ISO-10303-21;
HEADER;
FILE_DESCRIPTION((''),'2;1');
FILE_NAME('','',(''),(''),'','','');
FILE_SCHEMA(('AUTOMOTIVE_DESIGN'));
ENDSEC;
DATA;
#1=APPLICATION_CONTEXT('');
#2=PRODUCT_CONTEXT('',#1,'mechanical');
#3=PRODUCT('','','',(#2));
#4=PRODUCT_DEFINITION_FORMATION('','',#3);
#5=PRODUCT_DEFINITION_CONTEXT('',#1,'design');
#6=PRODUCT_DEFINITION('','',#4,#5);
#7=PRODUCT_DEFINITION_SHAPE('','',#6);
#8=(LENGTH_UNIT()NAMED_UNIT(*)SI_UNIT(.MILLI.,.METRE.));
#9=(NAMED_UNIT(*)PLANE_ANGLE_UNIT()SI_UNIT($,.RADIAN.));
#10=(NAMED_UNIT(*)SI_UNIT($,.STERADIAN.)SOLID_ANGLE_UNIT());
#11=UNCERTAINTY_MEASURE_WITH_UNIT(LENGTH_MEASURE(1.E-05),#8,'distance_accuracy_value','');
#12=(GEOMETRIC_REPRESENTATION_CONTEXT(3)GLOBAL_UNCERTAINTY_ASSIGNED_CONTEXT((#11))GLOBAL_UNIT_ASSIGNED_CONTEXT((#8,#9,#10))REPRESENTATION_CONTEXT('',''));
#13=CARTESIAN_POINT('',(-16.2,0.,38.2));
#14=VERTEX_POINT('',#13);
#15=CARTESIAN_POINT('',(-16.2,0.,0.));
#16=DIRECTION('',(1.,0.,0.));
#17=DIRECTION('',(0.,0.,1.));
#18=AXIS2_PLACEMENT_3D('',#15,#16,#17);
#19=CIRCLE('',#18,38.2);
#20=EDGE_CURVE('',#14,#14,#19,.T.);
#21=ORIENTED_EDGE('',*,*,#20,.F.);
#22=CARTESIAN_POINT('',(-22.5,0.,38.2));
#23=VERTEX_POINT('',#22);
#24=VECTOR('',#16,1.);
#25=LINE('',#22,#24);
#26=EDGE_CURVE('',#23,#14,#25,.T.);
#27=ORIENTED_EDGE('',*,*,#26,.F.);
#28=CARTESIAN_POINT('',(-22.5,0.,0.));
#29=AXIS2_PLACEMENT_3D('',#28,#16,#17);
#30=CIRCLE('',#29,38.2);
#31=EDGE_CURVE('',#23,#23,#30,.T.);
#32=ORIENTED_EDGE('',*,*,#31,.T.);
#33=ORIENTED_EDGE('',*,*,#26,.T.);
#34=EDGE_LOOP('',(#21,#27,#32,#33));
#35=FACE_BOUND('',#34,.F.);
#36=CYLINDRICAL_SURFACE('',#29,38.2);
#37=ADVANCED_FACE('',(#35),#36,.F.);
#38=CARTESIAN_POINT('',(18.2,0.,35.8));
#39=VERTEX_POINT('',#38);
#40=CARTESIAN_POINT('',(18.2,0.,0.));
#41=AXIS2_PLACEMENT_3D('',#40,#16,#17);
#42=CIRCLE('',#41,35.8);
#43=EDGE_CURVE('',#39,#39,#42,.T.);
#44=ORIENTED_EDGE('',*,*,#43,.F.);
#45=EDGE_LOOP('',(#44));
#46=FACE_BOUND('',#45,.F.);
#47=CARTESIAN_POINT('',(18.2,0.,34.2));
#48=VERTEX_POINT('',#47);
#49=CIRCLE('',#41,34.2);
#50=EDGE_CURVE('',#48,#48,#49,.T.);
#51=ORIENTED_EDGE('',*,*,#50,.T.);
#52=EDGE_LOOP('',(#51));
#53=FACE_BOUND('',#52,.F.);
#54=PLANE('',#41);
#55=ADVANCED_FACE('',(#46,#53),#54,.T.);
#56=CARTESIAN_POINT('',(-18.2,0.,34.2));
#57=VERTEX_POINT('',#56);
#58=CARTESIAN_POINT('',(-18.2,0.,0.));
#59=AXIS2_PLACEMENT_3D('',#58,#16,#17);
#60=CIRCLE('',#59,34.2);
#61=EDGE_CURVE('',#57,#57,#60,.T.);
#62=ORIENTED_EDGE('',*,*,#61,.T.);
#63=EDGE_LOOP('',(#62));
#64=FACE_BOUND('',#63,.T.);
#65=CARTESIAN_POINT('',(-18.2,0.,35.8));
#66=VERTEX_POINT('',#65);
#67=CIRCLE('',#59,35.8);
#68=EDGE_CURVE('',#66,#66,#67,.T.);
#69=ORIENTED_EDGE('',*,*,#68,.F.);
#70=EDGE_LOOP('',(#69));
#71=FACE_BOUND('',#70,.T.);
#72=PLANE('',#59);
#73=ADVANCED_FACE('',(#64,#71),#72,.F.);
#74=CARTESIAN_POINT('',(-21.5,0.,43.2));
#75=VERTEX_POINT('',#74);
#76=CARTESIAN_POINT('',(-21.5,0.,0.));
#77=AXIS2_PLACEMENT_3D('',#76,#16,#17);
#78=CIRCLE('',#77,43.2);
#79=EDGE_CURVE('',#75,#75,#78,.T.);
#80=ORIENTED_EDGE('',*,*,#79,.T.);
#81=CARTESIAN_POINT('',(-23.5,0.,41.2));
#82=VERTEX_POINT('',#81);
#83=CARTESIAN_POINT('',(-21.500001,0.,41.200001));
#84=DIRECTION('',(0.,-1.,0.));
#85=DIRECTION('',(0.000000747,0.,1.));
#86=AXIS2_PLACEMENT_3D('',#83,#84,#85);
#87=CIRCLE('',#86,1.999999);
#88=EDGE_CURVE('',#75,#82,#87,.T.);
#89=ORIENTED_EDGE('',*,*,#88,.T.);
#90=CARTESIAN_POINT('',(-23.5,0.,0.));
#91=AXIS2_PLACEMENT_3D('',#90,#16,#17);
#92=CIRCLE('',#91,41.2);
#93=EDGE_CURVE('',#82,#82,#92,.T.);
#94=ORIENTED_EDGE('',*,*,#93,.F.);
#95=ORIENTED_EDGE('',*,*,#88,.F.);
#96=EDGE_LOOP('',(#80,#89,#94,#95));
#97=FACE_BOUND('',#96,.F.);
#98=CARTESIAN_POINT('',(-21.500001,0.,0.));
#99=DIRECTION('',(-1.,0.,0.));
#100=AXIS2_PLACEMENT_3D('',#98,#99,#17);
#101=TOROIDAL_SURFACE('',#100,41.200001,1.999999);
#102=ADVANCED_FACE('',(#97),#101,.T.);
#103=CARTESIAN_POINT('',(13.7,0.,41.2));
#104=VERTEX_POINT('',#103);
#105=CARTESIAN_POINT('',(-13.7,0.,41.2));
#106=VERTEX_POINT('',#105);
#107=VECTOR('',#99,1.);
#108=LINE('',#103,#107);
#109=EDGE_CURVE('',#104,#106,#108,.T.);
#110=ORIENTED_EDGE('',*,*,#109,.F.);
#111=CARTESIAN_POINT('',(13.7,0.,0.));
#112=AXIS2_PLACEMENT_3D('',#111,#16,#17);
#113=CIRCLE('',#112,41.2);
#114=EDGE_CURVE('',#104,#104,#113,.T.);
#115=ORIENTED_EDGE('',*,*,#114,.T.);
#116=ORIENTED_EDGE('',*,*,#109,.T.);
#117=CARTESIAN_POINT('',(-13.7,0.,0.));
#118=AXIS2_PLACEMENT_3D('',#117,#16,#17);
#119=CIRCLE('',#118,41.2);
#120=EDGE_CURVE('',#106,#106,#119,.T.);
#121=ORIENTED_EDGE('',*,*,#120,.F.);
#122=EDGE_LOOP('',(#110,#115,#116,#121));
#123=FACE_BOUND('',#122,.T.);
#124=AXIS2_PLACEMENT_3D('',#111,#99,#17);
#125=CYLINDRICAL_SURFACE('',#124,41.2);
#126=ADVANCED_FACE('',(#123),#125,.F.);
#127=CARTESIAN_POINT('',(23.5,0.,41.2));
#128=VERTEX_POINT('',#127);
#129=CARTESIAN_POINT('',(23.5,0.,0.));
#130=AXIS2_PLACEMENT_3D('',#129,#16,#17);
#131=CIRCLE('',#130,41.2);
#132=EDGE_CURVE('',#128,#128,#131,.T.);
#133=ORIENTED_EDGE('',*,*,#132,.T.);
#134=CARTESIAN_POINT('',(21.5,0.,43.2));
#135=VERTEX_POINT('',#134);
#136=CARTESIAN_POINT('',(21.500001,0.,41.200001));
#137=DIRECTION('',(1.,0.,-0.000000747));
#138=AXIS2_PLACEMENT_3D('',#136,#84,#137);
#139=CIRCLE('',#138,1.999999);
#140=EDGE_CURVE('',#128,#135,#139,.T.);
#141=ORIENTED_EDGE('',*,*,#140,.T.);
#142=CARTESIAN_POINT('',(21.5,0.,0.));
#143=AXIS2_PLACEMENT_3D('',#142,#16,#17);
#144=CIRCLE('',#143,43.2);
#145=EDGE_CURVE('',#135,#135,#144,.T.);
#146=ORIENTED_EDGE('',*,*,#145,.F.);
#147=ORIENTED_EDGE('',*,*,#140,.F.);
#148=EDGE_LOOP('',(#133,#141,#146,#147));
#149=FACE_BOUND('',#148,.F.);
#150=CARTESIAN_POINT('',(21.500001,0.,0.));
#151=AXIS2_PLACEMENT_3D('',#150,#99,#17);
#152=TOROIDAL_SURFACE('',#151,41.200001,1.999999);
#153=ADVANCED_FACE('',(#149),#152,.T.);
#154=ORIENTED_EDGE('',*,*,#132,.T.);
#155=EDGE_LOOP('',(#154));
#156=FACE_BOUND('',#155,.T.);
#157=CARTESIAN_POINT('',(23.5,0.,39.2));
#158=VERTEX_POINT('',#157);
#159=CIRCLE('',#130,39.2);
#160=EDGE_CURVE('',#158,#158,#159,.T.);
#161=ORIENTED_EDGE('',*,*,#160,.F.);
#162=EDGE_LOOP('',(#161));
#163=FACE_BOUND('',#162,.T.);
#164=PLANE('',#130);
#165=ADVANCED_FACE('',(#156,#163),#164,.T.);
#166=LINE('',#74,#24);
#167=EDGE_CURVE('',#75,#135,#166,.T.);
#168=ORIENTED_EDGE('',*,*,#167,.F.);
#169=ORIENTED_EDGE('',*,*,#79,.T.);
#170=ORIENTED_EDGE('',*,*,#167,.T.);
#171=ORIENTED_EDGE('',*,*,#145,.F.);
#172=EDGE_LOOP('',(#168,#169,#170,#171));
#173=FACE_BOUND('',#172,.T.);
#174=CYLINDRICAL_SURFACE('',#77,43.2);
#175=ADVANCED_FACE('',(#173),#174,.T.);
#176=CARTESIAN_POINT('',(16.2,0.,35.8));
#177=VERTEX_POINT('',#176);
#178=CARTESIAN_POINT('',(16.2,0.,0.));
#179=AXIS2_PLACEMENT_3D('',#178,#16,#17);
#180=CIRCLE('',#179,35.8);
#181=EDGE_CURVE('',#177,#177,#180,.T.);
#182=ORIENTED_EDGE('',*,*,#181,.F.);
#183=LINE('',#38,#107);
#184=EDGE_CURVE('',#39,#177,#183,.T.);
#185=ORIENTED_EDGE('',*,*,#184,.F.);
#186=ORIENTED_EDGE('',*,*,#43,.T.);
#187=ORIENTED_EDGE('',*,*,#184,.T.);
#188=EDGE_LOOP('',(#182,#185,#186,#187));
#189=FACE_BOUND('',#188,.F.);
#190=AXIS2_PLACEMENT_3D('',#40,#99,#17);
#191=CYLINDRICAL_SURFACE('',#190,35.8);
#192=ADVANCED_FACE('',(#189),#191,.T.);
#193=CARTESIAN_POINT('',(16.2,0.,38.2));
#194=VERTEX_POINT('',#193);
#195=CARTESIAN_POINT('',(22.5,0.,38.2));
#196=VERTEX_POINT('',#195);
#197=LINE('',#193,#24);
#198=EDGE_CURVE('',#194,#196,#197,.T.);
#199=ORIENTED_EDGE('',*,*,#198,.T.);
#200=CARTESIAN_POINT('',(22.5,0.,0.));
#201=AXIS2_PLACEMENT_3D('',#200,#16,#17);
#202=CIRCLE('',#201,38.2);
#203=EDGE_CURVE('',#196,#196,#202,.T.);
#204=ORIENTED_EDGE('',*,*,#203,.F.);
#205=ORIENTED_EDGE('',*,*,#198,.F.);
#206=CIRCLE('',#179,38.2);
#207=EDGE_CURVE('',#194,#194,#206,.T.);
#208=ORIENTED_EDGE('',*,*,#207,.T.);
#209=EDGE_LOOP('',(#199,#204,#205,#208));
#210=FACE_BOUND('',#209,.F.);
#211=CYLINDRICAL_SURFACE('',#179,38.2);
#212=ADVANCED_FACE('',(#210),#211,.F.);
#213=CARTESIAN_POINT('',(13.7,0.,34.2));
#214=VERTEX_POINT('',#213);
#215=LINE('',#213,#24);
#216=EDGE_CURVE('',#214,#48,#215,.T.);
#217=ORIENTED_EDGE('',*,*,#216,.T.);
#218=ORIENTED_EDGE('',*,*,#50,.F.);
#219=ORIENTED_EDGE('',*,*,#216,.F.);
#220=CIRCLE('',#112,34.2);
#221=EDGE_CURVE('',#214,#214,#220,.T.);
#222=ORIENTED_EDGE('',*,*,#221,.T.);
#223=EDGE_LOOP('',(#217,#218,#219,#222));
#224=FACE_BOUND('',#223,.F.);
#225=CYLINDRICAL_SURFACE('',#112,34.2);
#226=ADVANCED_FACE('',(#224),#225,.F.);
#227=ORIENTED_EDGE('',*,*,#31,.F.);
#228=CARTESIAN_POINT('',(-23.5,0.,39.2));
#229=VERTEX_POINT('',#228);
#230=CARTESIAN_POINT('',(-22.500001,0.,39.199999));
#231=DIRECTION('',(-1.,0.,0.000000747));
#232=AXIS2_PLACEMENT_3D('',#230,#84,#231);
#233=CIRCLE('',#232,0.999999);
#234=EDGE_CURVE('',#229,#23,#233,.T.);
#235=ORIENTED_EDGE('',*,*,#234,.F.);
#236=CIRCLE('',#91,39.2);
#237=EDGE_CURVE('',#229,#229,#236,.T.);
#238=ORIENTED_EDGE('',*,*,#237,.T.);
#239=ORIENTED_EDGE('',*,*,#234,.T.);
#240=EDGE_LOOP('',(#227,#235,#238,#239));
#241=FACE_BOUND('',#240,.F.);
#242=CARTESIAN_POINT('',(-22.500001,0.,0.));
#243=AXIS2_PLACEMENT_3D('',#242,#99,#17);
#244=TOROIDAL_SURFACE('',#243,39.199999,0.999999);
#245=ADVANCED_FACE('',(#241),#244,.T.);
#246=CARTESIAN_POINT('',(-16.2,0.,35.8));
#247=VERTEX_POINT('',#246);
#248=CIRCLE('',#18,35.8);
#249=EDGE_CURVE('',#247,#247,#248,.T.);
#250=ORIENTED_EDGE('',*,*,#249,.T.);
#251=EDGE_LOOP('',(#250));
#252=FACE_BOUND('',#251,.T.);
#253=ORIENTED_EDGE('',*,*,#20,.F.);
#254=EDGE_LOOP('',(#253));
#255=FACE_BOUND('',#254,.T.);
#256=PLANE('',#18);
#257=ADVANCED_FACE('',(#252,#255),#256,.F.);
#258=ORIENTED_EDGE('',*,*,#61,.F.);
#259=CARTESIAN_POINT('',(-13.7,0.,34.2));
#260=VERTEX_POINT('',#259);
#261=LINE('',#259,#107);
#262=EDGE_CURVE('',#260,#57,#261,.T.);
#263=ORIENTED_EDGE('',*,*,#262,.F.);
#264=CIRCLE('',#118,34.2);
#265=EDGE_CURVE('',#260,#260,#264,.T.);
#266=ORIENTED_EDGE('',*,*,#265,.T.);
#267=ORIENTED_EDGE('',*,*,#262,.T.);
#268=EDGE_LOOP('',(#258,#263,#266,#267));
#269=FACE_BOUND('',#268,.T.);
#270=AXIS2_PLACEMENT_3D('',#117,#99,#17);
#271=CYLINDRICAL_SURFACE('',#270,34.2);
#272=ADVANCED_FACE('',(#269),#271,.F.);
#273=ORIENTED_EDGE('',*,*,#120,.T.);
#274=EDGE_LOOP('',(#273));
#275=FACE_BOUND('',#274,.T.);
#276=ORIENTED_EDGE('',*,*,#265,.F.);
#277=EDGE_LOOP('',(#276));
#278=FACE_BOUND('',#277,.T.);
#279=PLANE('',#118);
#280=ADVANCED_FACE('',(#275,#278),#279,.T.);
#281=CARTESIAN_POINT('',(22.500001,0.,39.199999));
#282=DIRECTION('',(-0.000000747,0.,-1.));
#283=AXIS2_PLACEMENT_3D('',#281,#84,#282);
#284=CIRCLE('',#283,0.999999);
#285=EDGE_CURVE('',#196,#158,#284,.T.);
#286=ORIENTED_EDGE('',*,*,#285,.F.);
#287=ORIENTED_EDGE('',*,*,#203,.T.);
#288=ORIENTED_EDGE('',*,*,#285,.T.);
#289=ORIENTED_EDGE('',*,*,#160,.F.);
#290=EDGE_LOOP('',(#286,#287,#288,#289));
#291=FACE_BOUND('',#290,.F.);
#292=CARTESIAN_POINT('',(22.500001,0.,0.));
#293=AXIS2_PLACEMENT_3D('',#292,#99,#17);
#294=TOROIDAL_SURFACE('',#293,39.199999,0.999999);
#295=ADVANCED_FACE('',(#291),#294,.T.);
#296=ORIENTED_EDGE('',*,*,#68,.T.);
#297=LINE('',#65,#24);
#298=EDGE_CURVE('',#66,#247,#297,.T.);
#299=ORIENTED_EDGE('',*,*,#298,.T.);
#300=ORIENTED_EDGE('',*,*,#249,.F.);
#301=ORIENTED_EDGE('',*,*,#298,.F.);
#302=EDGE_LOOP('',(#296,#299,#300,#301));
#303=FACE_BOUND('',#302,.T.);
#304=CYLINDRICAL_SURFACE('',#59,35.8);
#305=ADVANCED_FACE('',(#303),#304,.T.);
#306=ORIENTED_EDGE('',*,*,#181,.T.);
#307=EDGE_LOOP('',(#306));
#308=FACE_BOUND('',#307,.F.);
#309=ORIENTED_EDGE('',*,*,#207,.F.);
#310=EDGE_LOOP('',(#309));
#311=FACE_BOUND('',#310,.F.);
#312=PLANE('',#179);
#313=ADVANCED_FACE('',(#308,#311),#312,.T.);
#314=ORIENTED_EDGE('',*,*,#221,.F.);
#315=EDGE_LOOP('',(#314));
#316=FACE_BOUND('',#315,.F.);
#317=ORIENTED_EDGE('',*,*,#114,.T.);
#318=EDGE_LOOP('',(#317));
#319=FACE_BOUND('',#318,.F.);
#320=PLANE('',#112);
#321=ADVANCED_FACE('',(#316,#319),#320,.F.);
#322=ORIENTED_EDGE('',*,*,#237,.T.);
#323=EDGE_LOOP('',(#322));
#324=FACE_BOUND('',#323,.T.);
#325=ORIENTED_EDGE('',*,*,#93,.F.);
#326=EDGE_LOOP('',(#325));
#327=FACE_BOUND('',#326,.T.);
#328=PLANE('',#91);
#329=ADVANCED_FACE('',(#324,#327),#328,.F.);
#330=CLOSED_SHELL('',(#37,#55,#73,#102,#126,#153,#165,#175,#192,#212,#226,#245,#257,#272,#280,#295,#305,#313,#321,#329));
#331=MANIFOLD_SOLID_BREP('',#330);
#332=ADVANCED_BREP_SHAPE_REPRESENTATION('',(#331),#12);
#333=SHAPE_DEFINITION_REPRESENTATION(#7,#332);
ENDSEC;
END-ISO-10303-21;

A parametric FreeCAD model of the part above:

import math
import FreeCAD as App
import Part
import Sketcher
from FreeCAD import Vector
Q = App.Units.Quantity

doc = App.newDocument("Part")
body = doc.addObject("PartDesign::Body", "Body")

# Sketch on XZ plane
sketch1 = body.newObject("Sketcher::SketchObject", "Sketch")
sketch1.AttachmentSupport = (doc.getObject("XZ_Plane"), [""])
sketch1.MapMode = "FlatFace"
sketch1.addGeometry([
    Part.LineSegment(Vector(-13.7, 34.2, 0), Vector(-13.7, 41.2, 0)),  # 0
    Part.LineSegment(Vector(-13.7, 41.2, 0), Vector(13.7, 41.2, 0)),  # 1
    Part.LineSegment(Vector(13.7, 41.2, 0), Vector(13.7, 34.2, 0)),  # 2
    Part.LineSegment(Vector(13.7, 34.2, 0), Vector(18.2, 34.2, 0)),  # 3
    Part.LineSegment(Vector(18.2, 34.2, 0), Vector(18.2, 35.8, 0)),  # 4
    Part.LineSegment(Vector(18.2, 35.8, 0), Vector(16.2, 35.8, 0)),  # 5
    Part.LineSegment(Vector(16.2, 35.8, 0), Vector(16.2, 38.2, 0)),  # 6
    Part.LineSegment(Vector(16.2, 38.2, 0), Vector(22.5, 38.2, 0)),  # 7
    Part.ArcOfCircle(Part.Circle(Vector(22.500001, 39.199999, 0), Vector(0, 0, 1), 0.999999), math.radians(-90.000043), math.radians(0.000043)),  # 8
    Part.LineSegment(Vector(23.5, 39.2, 0), Vector(23.5, 41.2, 0)),  # 9
    Part.ArcOfCircle(Part.Circle(Vector(21.500001, 41.200001, 0), Vector(0, 0, 1), 1.999999), math.radians(-0.000043), math.radians(90.000043)),  # 10
    Part.LineSegment(Vector(21.5, 43.2, 0), Vector(-21.5, 43.2, 0)),  # 11
    Part.ArcOfCircle(Part.Circle(Vector(-21.500001, 41.200001, 0), Vector(0, 0, 1), 1.999999), math.radians(89.999957), math.radians(180.000043)),  # 12
    Part.LineSegment(Vector(-23.5, 41.2, 0), Vector(-23.5, 39.2, 0)),  # 13
    Part.ArcOfCircle(Part.Circle(Vector(-22.500001, 39.199999, 0), Vector(0, 0, 1), 0.999999), math.radians(179.999957), math.radians(270.000043)),  # 14
    Part.LineSegment(Vector(-22.5, 38.2, 0), Vector(-16.2, 38.2, 0)),  # 15
    Part.LineSegment(Vector(-16.2, 38.2, 0), Vector(-16.2, 35.8, 0)),  # 16
    Part.LineSegment(Vector(-16.2, 35.8, 0), Vector(-18.2, 35.8, 0)),  # 17
    Part.LineSegment(Vector(-18.2, 35.8, 0), Vector(-18.2, 34.2, 0)),  # 18
    Part.LineSegment(Vector(-18.2, 34.2, 0), Vector(-13.7, 34.2, 0)),  # 19
], False)
sketch1.addConstraint([
    Sketcher.Constraint("Coincident", 0, 2, 1, 1),
    Sketcher.Constraint("Coincident", 1, 2, 2, 1),
    Sketcher.Constraint("Coincident", 2, 2, 3, 1),
    Sketcher.Constraint("Coincident", 3, 2, 4, 1),
    Sketcher.Constraint("Coincident", 4, 2, 5, 1),
    Sketcher.Constraint("Coincident", 5, 2, 6, 1),
    Sketcher.Constraint("Coincident", 6, 2, 7, 1),
    Sketcher.Constraint("Tangent", 7, 2, 8, 1),
    Sketcher.Constraint("Tangent", 8, 2, 9, 1),
    Sketcher.Constraint("Tangent", 9, 2, 10, 1),
    Sketcher.Constraint("Tangent", 10, 2, 11, 1),
    Sketcher.Constraint("Tangent", 11, 2, 12, 1),
    Sketcher.Constraint("Tangent", 12, 2, 13, 1),
    Sketcher.Constraint("Tangent", 13, 2, 14, 1),
    Sketcher.Constraint("Tangent", 14, 2, 15, 1),
    Sketcher.Constraint("Coincident", 15, 2, 16, 1),
    Sketcher.Constraint("Coincident", 16, 2, 17, 1),
    Sketcher.Constraint("Coincident", 17, 2, 18, 1),
    Sketcher.Constraint("Coincident", 18, 2, 19, 1),
    Sketcher.Constraint("Coincident", 19, 2, 0, 1),
    Sketcher.Constraint("Vertical", 0),
    Sketcher.Constraint("Horizontal", 1),
    Sketcher.Constraint("Vertical", 2),
    Sketcher.Constraint("Horizontal", 3),
    Sketcher.Constraint("Vertical", 4),
    Sketcher.Constraint("Horizontal", 5),
    Sketcher.Constraint("Vertical", 6),
    Sketcher.Constraint("Horizontal", 7),
    Sketcher.Constraint("Vertical", 9),
    Sketcher.Constraint("Horizontal", 11),
    Sketcher.Constraint("Vertical", 13),
    Sketcher.Constraint("Horizontal", 15),
    Sketcher.Constraint("Vertical", 16),
    Sketcher.Constraint("Horizontal", 17),
    Sketcher.Constraint("Vertical", 18),
    Sketcher.Constraint("Horizontal", 19),
    Sketcher.Constraint("Equal", 10, 12),
    Sketcher.Constraint("Equal", 8, 14),
    Sketcher.Constraint("Symmetric", 8, 3, 14, 3, -2),
    Sketcher.Constraint("Symmetric", 5, 2, 16, 2, -2),
    Sketcher.Constraint("Symmetric", 3, 2, 18, 2, -2),
    Sketcher.Constraint("Horizontal", 12, 3, 0, 2),
    Sketcher.Constraint("Equal", 3, 19),
    Sketcher.Constraint("Equal", 17, 9),
    Sketcher.Constraint("Radius", 8, Q("0.999999 mm")),
    Sketcher.Constraint("Radius", 10, Q("1.999999 mm")),
    Sketcher.Constraint("DistanceX", 5, 2, 5, 1, Q("2 mm")),
    Sketcher.Constraint("DistanceX", 11, 2, 11, 1, Q("43 mm")),
    Sketcher.Constraint("DistanceY", 0, 1, 0, 2, Q("7 mm")),
    Sketcher.Constraint("DistanceX", 1, 1, 1, 2, Q("27.4 mm")),
    Sketcher.Constraint("DistanceX", 3, 1, 3, 2, Q("4.5 mm")),
    Sketcher.Constraint("DistanceY", 4, 1, 4, 2, Q("1.6 mm")),
    Sketcher.Constraint("DistanceY", -1, 1, 8, 3, Q("39.199999 mm")),
])
revolution = body.newObject("PartDesign::Revolution", "Revolution")
revolution.Profile = sketch1
revolution.ReferenceAxis = (sketch1, ["H_Axis"])
revolution.Angle = 360

doc.recompute()
